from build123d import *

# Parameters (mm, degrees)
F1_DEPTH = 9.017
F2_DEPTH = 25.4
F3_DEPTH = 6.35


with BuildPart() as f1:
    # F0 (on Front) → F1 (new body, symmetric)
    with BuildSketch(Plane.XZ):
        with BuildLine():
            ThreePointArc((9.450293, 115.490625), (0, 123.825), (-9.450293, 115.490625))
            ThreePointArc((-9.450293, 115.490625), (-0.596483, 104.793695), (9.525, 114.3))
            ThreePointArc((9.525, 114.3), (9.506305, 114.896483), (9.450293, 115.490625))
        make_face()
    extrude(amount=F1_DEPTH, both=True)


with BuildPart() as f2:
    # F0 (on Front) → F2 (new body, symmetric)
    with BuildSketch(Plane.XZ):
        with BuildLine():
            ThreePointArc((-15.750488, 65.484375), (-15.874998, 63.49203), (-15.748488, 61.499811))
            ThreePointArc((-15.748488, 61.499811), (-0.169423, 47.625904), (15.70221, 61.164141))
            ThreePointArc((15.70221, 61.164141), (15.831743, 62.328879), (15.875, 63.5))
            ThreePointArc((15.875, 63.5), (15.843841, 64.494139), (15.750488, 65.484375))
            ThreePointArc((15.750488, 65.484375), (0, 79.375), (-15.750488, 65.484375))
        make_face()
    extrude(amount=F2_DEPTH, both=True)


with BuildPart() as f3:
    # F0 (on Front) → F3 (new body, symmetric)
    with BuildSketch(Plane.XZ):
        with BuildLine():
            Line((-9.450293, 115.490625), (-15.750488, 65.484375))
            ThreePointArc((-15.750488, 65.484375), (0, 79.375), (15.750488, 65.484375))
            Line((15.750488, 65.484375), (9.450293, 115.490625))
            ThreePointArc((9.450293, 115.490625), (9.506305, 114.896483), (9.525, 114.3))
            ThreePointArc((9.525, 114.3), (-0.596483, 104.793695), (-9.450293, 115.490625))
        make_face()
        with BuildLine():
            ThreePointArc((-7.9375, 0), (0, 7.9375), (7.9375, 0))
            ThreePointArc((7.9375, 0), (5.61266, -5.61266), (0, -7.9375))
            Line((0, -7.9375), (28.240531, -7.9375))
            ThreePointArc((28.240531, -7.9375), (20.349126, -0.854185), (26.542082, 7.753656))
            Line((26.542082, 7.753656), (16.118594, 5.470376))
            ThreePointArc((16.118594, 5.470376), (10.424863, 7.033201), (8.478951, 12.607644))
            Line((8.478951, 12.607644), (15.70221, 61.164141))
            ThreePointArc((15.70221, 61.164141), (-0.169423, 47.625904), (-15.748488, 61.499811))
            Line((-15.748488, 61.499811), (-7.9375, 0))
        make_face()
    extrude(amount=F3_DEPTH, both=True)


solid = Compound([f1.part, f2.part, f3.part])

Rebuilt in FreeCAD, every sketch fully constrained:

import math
import FreeCAD as App
import Part
import Sketcher
Q = App.Units.Quantity

doc = App.newDocument("Part")
body = doc.addObject("PartDesign::Body", "Body")

# Sketch on XZ plane
sketch1 = body.newObject("Sketcher::SketchObject", "Sketch")
sketch1.AttachmentSupport = (doc.getObject("XZ_Plane"), [""])
sketch1.MapMode = "FlatFace"
sketch1.addGeometry(Part.ArcOfCircle(Part.Circle(App.Vector(0, 114.3, 0), App.Vector(0, 0, 1), 9.525), math.radians(7.180756), math.radians(172.819244)), False)
sketch1.addGeometry(Part.ArcOfCircle(Part.Circle(App.Vector(0, 114.3, 0), App.Vector(0, 0, 1), 9.525), math.radians(172.819244), math.radians(360)), False)
sketch1.addGeometry(Part.ArcOfCircle(Part.Circle(App.Vector(0.000037, 114.300003, 0), App.Vector(0, 0, 1), 9.524963), math.radians(-0.000016), math.radians(7.180768)), False)
sketch1.addConstraint(Sketcher.Constraint("Coincident", 0, 2, 1, 1))
sketch1.addConstraint(Sketcher.Constraint("Coincident", 1, 2, 2, 1))
sketch1.addConstraint(Sketcher.Constraint("Coincident", 2, 2, 0, 1))
sketch1.addConstraint(Sketcher.Constraint("Coincident", 1, 3, 0, 3))
sketch1.addConstraint(Sketcher.Constraint("PointOnObject", 0, 3, -2))
sketch1.addConstraint(Sketcher.Constraint("Radius", 0, Q("0.375 in")))
sketch1.addConstraint(Sketcher.Constraint("DistanceY", -1, 1, 0, 3, Q("4.5 in")))
sketch1.addConstraint(Sketcher.Constraint("DistanceY", -1, 1, 2, 3, Q("4.5000001 in")))
sketch1.addConstraint(Sketcher.Constraint("DistanceY", -1, 1, 1, 2, Q("4.5 in")))
sketch1.addConstraint(Sketcher.Constraint("DistanceY", -1, 1, 0, 2, Q("4.546875 in")))
sketch1.addConstraint(Sketcher.Constraint("DistanceY", -1, 1, 2, 2, Q("4.546875 in")))
pad1 = body.newObject("PartDesign::Pad", "Pad")
pad1.Profile = sketch1
pad1.Length = Q("0.71 in")
pad1.Midplane = True
body2 = doc.addObject("PartDesign::Body", "Body001")

# Sketch on XZ plane
sketch2 = body2.newObject("Sketcher::SketchObject", "Sketch001")
sketch2.AttachmentSupport = (doc.getObject("XZ_Plane001"), [""])
sketch2.MapMode = "FlatFace"
sketch2.addGeometry(Part.ArcOfCircle(Part.Circle(App.Vector(-0.000007, 63.499998, 0), App.Vector(0, 0, 1), 15.874993), math.radians(172.819235), math.radians(187.238283)), False)
sketch2.addGeometry(Part.ArcOfCircle(Part.Circle(App.Vector(0, 63.5, 0), App.Vector(0, 0, 1), 15.875), math.radians(-172.761713), math.radians(-8.461264)), False)
sketch2.addGeometry(Part.ArcOfCircle(Part.Circle(App.Vector(-0.000228, 63.500014, 0), App.Vector(0, 0, 1), 15.875228), math.radians(-8.461194), math.radians(-0.000052)), False)
sketch2.addGeometry(Part.ArcOfCircle(Part.Circle(App.Vector(-0.000171, 63.499987, 0), App.Vector(0, 0, 1), 15.875171), math.radians(0.000047), math.radians(7.180725)), False)
sketch2.addGeometry(Part.ArcOfCircle(Part.Circle(App.Vector(0, 63.5, 0), App.Vector(0, 0, 1), 15.875), math.radians(7.180755), math.radians(172.819245)), False)
sketch2.addConstraint(Sketcher.Constraint("Coincident", 0, 2, 1, 1))
sketch2.addConstraint(Sketcher.Constraint("Coincident", 1, 2, 2, 1))
sketch2.addConstraint(Sketcher.Constraint("Coincident", 2, 2, 3, 1))
sketch2.addConstraint(Sketcher.Constraint("Coincident", 3, 2, 4, 1))
sketch2.addConstraint(Sketcher.Constraint("Coincident", 4, 2, 0, 1))
sketch2.addConstraint(Sketcher.Constraint("Coincident", 1, 3, 0, 3))
sketch2.addConstraint(Sketcher.Constraint("Coincident", 4, 3, 0, 3))
sketch2.addConstraint(Sketcher.Constraint("PointOnObject", 1, 3, -2))
sketch2.addConstraint(Sketcher.Constraint("Radius", 1, Q("0.625 in")))
sketch2.addConstraint(Sketcher.Constraint("DistanceY", -1, 1, 0, 3, Q("2.4999999 in")))
sketch2.addConstraint(Sketcher.Constraint("DistanceY", -1, 1, 2, 2, Q("2.5 in")))
sketch2.addConstraint(Sketcher.Constraint("DistanceX", -1, 1, 2, 2, Q("0.625 in")))
sketch2.addConstraint(Sketcher.Constraint("DistanceY", -1, 1, 3, 2, Q("2.578125 in")))
sketch2.addConstraint(Sketcher.Constraint("DistanceY", -1, 1, 4, 2, Q("2.578125 in")))
sketch2.addConstraint(Sketcher.Constraint("Radius", 3, 15.875171))
sketch2.addConstraint(Sketcher.Constraint("Radius", 2, 15.875228))
sketch2.addConstraint(Sketcher.Constraint("DistanceX", 4, 2, 0, 2, 0.002))
sketch2.addConstraint(Sketcher.Constraint("DistanceX", -1, 1, 1, 2, 15.70221))
pad2 = body2.newObject("PartDesign::Pad", "Pad001")
pad2.Profile = sketch2
pad2.Length = Q("2 in")
pad2.Midplane = True
body3 = doc.addObject("PartDesign::Body", "Body002")
body3.AllowCompound = True

# Sketch on XZ plane
sketch3 = body3.newObject("Sketcher::SketchObject", "Sketch002")
sketch3.AttachmentSupport = (doc.getObject("XZ_Plane002"), [""])
sketch3.MapMode = "FlatFace"
sketch3.addGeometry(Part.LineSegment(App.Vector(-9.450293, 115.490625, 0), App.Vector(-15.750488, 65.484375, 0)), False)
sketch3.addGeometry(Part.ArcOfCircle(Part.Circle(App.Vector(0, 63.5, 0), App.Vector(0, 0, 1), 15.875), math.radians(7.180755), math.radians(172.819245)), False)
sketch3.addGeometry(Part.LineSegment(App.Vector(15.750488, 65.484375, 0), App.Vector(9.450293, 115.490625, 0)), False)
sketch3.addGeometry(Part.ArcOfCircle(Part.Circle(App.Vector(0.000037, 114.300003, 0), App.Vector(0, 0, 1), 9.524963), math.radians(-0.000016), math.radians(7.180768)), False)
sketch3.addGeometry(Part.ArcOfCircle(Part.Circle(App.Vector(0, 114.3, 0), App.Vector(0, 0, 1), 9.525), math.radians(172.819244), math.radians(360)), False)
sketch3.addGeometry(Part.ArcOfCircle(Part.Circle(App.Vector(0, 0, 0), App.Vector(0, 0, 1), 7.9375), math.radians(0), math.radians(180)), False)
sketch3.addGeometry(Part.ArcOfCircle(Part.Circle(App.Vector(0, 0, 0), App.Vector(0, 0, 1), 7.9375), math.radians(-89.999998), math.radians(-0.000002)), False)
sketch3.addGeometry(Part.LineSegment(App.Vector(0, -7.9375, 0), App.Vector(28.240531, -7.9375, 0)), False)
sketch3.addGeometry(Part.ArcOfCircle(Part.Circle(App.Vector(28.240531, 0, 0), App.Vector(0, 0, 1), 7.9375), math.radians(102.355567), math.radians(269.999998)), False)
sketch3.addGeometry(Part.LineSegment(App.Vector(26.542082, 7.753656, 0), App.Vector(16.118594, 5.470376, 0)), False)
sketch3.addGeometry(Part.ArcOfCircle(Part.Circle(App.Vector(14.759834, 11.6733, 0), App.Vector(0, 0, 1), 6.349999), math.radians(171.538731), math.radians(282.355572)), False)
sketch3.addGeometry(Part.LineSegment(App.Vector(8.478951, 12.607644, 0), App.Vector(15.70221, 61.164141, 0)), False)
sketch3.addGeometry(Part.ArcOfCircle(Part.Circle(App.Vector(0, 63.5, 0), App.Vector(0, 0, 1), 15.875), math.radians(-172.761713), math.radians(-8.461264)), False)
sketch3.addGeometry(Part.LineSegment(App.Vector(-15.748488, 61.499811, 0), App.Vector(-7.9375, 0, 0)), False)
sketch3.addConstraint(Sketcher.Constraint("Coincident", 0, 2, 1, 2))
sketch3.addConstraint(Sketcher.Constraint("Coincident", 1, 1, 2, 1))
sketch3.addConstraint(Sketcher.Constraint("Coincident", 2, 2, 3, 2))
sketch3.addConstraint(Sketcher.Constraint("Coincident", 3, 1, 4, 2))
sketch3.addConstraint(Sketcher.Constraint("Coincident", 4, 1, 0, 1))
sketch3.addConstraint(Sketcher.Constraint("Coincident", 5, 1, 6, 2))
sketch3.addConstraint(Sketcher.Constraint("Coincident", 6, 1, 7, 1))
sketch3.addConstraint(Sketcher.Constraint("Coincident", 7, 2, 8, 2))
sketch3.addConstraint(Sketcher.Constraint("Coincident", 8, 1, 9, 1))
sketch3.addConstraint(Sketcher.Constraint("Coincident", 9, 2, 10, 2))
sketch3.addConstraint(Sketcher.Constraint("Coincident", 10, 1, 11, 1))
sketch3.addConstraint(Sketcher.Constraint("Coincident", 11, 2, 12, 2))
sketch3.addConstraint(Sketcher.Constraint("Coincident", 12, 1, 13, 1))
sketch3.addConstraint(Sketcher.Constraint("Coincident", 13, 2, 5, 2))
sketch3.addConstraint(Sketcher.Constraint("Horizontal", 7))
sketch3.addConstraint(Sketcher.Constraint("Coincident", 5, 3, -1, 1))
sketch3.addConstraint(Sketcher.Constraint("Coincident", 6, 3, -1, 1))
sketch3.addConstraint(Sketcher.Constraint("Coincident", 12, 3, 1, 3))
sketch3.addConstraint(Sketcher.Constraint("PointOnObject", 1, 3, -2))
sketch3.addConstraint(Sketcher.Constraint("PointOnObject", 4, 3, -2))
sketch3.addConstraint(Sketcher.Constraint("PointOnObject", 8, 3, -1))
sketch3.addConstraint(Sketcher.Constraint("PointOnObject", 5, 1, -1))
sketch3.addConstraint(Sketcher.Constraint("PointOnObject", 6, 1, -2))
sketch3.addConstraint(Sketcher.Constraint("PointOnObject", 13, 2, -1))
sketch3.addConstraint(Sketcher.Constraint("Radius", 10, Q("0.25 in")))
sketch3.addConstraint(Sketcher.Constraint("Radius", 1, Q("0.625 in")))
sketch3.addConstraint(Sketcher.Constraint("Radius", 4, Q("0.375 in")))
sketch3.addConstraint(Sketcher.Constraint("Radius", 5, Q("0.3125 in")))
sketch3.addConstraint(Sketcher.Constraint("Radius", 12, Q("0.625 in")))
sketch3.addConstraint(Sketcher.Constraint("DistanceY", 1, 3, 3, 3, Q("2.0000001 in")))
sketch3.addConstraint(Sketcher.Constraint("DistanceY", 1, 3, 4, 3, Q("2 in")))
sketch3.addConstraint(Sketcher.Constraint("DistanceY", 1, 3, 3, 1, Q("2 in")))
sketch3.addConstraint(Sketcher.Constraint("DistanceY", -1, 1, 1, 3, Q("2.5 in")))
sketch3.addConstraint(Sketcher.Constraint("DistanceY", -1, 1, 0, 2, Q("2.578125 in")))
sketch3.addConstraint(Sketcher.Constraint("DistanceY", -1, 1, 1, 1, Q("2.578125 in")))
sketch3.addConstraint(Sketcher.Constraint("DistanceY", -1, 1, 2, 2, Q("4.546875 in")))
sketch3.addConstraint(Sketcher.Constraint("DistanceY", -1, 1, 4, 1, Q("4.546875 in")))
sketch3.addConstraint(Sketcher.Constraint("Radius", 3, 9.524963))
sketch3.addConstraint(Sketcher.Constraint("DistanceX", 7, 1, 7, 2, 28.240531))
sketch3.addConstraint(Sketcher.Constraint("DistanceY", -1, 1, 10, 3, 11.6733))
sketch3.addConstraint(Sketcher.Constraint("DistanceX", 0, 2, 12, 1, 0.002))
sketch3.addConstraint(Sketcher.Constraint("DistanceX", 12, 1, 11, 2, 31.450698))
sketch3.addConstraint(Sketcher.Constraint("DistanceX", -1, 1, 8, 3, 28.240531))
sketch3.addConstraint(Sketcher.Constraint("DistanceX", -1, 1, 8, 1, 26.542082))
sketch3.addConstraint(Sketcher.Constraint("DistanceX", -1, 1, 10, 1, 8.478951))
sketch3.addConstraint(Sketcher.Constraint("DistanceX", 10, 3, 9, 2, 1.35876))
sketch3.addConstraint(Sketcher.Constraint("Distance", 9, 10.670636))
pad3 = body3.newObject("PartDesign::Pad", "Pad002")
pad3.Profile = sketch3
pad3.Length = Q("0.5 in")
pad3.Midplane = True

doc.recompute()
